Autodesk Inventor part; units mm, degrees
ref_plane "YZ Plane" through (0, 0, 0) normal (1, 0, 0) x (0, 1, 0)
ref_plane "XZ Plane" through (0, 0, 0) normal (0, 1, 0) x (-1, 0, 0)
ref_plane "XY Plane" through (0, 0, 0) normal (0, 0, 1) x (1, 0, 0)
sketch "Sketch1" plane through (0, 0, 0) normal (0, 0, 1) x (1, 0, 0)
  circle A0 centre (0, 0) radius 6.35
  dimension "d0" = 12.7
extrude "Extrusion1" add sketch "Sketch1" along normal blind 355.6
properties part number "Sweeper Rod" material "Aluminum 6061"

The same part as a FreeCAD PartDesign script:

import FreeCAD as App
import Part
import Sketcher
Q = App.Units.Quantity

doc = App.newDocument("Part")
params = doc.addObject("Spreadsheet::Sheet", "Params")
for row, (alias, value) in enumerate([
    ("sketch1_diameter", "0.5 in"),
    ("pad1_length", "14 in"),
], start=1):
    params.set(f"A{row}", alias)
    params.set(f"B{row}", "=" + value)
    params.setAlias(f"B{row}", alias)

body = doc.addObject("PartDesign::Body", "Body")

# Sketch on XY plane
sketch1 = doc.addObject("Sketcher::SketchObject", "Sketch")
body.addObject(sketch1)
sketch1.AttachmentSupport = (doc.XY_Plane, [""])
sketch1.MapMode = "FlatFace"
sketch1.addGeometry(Part.Circle(App.Vector(0, 0, 0), App.Vector(0, 0, 1), 6), False)
sketch1.addConstraint(Sketcher.Constraint("Coincident", 0, 3, -1, 1))
sketch1.addConstraint(Sketcher.Constraint("Diameter", 0, Q("0.5 in")))
sketch1.setExpression("Constraints[1]", "Params.sketch1_diameter")
pad1 = doc.addObject("PartDesign::Pad", "Pad")
body.addObject(pad1)
pad1.Profile = sketch1
pad1.setExpression("Length", "Params.pad1_length")

doc.recompute()
